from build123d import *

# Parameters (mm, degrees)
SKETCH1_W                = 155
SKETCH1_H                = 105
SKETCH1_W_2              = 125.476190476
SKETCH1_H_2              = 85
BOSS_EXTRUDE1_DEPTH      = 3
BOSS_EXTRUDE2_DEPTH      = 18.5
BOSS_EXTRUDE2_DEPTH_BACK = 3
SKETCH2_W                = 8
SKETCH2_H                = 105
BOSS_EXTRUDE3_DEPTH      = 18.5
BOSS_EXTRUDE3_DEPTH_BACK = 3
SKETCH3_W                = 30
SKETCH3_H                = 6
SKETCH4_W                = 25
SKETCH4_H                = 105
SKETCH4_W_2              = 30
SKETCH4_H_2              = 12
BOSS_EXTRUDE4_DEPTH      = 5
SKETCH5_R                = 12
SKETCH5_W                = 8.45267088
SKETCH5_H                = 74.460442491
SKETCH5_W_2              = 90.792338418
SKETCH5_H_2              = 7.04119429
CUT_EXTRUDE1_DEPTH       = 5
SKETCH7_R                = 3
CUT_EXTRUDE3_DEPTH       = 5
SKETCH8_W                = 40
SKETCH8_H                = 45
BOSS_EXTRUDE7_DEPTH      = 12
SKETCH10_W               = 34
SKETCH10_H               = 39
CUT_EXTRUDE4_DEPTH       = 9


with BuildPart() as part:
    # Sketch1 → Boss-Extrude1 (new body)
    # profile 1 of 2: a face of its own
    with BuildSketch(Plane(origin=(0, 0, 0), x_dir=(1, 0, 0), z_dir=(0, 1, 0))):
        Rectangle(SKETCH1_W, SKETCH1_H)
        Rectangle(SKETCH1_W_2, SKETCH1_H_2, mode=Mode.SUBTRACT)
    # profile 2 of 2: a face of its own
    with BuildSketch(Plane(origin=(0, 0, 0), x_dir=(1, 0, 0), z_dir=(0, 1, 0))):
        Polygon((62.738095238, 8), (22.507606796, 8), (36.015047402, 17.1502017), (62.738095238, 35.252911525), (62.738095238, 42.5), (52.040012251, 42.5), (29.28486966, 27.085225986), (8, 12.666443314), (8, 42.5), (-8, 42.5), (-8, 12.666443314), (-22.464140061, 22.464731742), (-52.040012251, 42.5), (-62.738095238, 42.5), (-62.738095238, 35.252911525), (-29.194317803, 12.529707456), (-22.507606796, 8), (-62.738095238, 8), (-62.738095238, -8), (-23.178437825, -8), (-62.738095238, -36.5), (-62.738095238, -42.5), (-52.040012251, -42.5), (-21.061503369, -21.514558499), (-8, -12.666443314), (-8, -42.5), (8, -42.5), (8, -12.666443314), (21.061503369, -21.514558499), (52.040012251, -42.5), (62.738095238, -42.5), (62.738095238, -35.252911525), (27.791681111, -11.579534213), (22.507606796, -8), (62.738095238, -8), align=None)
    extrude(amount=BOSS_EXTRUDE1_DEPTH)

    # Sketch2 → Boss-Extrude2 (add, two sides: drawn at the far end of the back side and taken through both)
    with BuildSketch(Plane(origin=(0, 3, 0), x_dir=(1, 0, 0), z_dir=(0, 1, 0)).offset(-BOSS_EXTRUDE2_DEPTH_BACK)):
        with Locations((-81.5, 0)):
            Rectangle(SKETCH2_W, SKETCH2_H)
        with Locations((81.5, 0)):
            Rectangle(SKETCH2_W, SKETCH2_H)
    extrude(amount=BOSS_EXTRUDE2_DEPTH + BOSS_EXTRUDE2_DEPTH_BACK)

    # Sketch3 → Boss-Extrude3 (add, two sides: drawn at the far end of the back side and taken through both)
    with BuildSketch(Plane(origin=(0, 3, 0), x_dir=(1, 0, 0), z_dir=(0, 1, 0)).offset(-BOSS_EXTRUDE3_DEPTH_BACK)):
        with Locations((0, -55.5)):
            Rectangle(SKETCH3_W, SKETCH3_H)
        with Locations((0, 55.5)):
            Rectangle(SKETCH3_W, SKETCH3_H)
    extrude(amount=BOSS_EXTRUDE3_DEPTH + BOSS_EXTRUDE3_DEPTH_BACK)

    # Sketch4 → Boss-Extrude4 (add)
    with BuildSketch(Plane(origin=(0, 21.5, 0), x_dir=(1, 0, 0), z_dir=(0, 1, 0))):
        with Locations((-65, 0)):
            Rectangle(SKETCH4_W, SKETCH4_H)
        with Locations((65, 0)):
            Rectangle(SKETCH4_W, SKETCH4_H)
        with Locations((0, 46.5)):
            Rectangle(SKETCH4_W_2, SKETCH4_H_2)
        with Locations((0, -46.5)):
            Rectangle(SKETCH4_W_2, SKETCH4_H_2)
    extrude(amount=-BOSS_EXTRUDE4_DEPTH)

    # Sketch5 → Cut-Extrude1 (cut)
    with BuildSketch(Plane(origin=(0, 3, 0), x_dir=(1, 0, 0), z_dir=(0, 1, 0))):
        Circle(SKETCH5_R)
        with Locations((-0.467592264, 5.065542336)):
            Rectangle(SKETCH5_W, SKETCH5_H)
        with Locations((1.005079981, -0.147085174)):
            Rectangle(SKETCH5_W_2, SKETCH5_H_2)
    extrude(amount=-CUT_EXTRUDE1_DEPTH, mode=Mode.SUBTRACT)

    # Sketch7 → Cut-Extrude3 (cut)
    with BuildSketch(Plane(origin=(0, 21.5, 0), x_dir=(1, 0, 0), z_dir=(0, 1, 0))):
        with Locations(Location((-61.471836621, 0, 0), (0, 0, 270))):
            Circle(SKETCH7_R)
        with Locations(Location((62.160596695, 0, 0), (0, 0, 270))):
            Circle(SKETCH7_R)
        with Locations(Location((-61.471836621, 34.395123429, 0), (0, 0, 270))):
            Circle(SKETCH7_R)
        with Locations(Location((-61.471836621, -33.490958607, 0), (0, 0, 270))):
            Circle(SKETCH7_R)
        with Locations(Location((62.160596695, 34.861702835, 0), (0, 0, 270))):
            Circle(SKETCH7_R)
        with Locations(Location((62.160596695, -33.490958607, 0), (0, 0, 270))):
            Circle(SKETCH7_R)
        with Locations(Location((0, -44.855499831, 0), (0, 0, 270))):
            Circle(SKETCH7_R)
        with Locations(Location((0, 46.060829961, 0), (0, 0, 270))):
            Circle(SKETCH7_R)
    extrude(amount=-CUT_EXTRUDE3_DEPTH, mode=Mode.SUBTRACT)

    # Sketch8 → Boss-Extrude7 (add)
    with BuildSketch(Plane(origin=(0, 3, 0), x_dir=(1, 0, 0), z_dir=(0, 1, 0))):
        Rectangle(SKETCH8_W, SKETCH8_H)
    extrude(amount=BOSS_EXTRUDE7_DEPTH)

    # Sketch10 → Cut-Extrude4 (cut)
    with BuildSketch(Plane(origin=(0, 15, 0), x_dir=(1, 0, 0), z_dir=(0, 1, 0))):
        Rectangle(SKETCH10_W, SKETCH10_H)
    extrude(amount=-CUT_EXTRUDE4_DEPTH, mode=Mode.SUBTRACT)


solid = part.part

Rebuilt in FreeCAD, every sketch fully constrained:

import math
import FreeCAD as App
import Part
import Sketcher
from FreeCAD import Vector
Q = App.Units.Quantity


def add_polygon(sketch, points):
    """Adds a closed chain of lines whose ends are joined by coincident constraints."""
    first, n = sketch.GeometryCount, len(points)
    for a, b in zip(points, points[1:] + points[:1]):
        sketch.addGeometry(Part.LineSegment(App.Vector(*a, 0), App.Vector(*b, 0)), False)
    for i in range(n):
        sketch.addConstraint(Sketcher.Constraint("Coincident", first + i, 2, first + (i + 1) % n, 1))

doc = App.newDocument("Part")
body = doc.addObject("PartDesign::Body", "Body")

sketch1 = body.newObject("Sketcher::SketchObject", "Sketch")
sketch1.AttachmentSupport = (doc.getObject("XZ_Plane"), [""])
sketch1.MapMode = "FlatFace"
add_polygon(sketch1, [(-78, -52), (-78, 52), (78, 52), (78, -52)])
add_polygon(sketch1, [(-8, 42), (-52, 42), (-21, 22), (-8, 13)])
add_polygon(sketch1, [(52, 42), (8, 42), (8, 13), (21, 22)])
add_polygon(sketch1, [(63, 8), (63, 35), (28, 12), (23, 8)])
add_polygon(sketch1, [(63, -35), (63, -8), (23, -8), (36, -17)])
add_polygon(sketch1, [(-52, -42), (-8, -42), (-8, -13), (-22, -22)])
add_polygon(sketch1, [(8, -42), (52, -42), (29, -27), (8, -13)])
add_polygon(sketch1, [(-63, 36), (-63, 8), (-23, 8)])
add_polygon(sketch1, [(-63, -8), (-63, -35), (-29, -13), (-23, -8)])
sketch1.addConstraint(Sketcher.Constraint("Vertical", 0))
sketch1.addConstraint(Sketcher.Constraint("Horizontal", 1))
sketch1.addConstraint(Sketcher.Constraint("Vertical", 2))
sketch1.addConstraint(Sketcher.Constraint("Horizontal", 3))
sketch1.addConstraint(Sketcher.Constraint("Horizontal", 4))
sketch1.addConstraint(Sketcher.Constraint("Vertical", 7))
sketch1.addConstraint(Sketcher.Constraint("Horizontal", 8))
sketch1.addConstraint(Sketcher.Constraint("Vertical", 9))
sketch1.addConstraint(Sketcher.Constraint("Vertical", 12))
sketch1.addConstraint(Sketcher.Constraint("Horizontal", 15))
sketch1.addConstraint(Sketcher.Constraint("Vertical", 16))
sketch1.addConstraint(Sketcher.Constraint("Horizontal", 17))
sketch1.addConstraint(Sketcher.Constraint("Horizontal", 20))
sketch1.addConstraint(Sketcher.Constraint("Vertical", 21))
sketch1.addConstraint(Sketcher.Constraint("Horizontal", 24))
sketch1.addConstraint(Sketcher.Constraint("Vertical", 27))
sketch1.addConstraint(Sketcher.Constraint("Vertical", 28))
sketch1.addConstraint(Sketcher.Constraint("Horizontal", 29))
sketch1.addConstraint(Sketcher.Constraint("Vertical", 31))
sketch1.addConstraint(Sketcher.Constraint("Horizontal", 34))
sketch1.addConstraint(Sketcher.Constraint("Symmetric", 0, 2, 2, 2, -1, 1))
sketch1.addConstraint(Sketcher.Constraint("Symmetric", 8, 2, 20, 2, -1, 1))
sketch1.addConstraint(Sketcher.Constraint("Symmetric", 4, 2, 24, 2, -1, 1))
sketch1.addConstraint(Sketcher.Constraint("Symmetric", 6, 2, 26, 2, -1, 1))
sketch1.addConstraint(Sketcher.Constraint("Symmetric", 16, 2, 28, 2, -1, 1))
sketch1.addConstraint(Sketcher.Constraint("Symmetric", 12, 2, 31, 2, -1, 1))
sketch1.addConstraint(Sketcher.Constraint("Symmetric", 14, 2, 33, 2, -1, 1))
sketch1.addConstraint(Sketcher.Constraint("Symmetric", 7, 2, 8, 2, -2))
sketch1.addConstraint(Sketcher.Constraint("Symmetric", 5, 2, 10, 2, -2))
sketch1.addConstraint(Sketcher.Constraint("Symmetric", 15, 2, 28, 2, -2))
sketch1.addConstraint(Sketcher.Constraint("Parallel", 5, 6))
sketch1.addConstraint(Sketcher.Constraint("Parallel", 10, 11))
sketch1.addConstraint(Sketcher.Constraint("Parallel", 11, 13))
sketch1.addConstraint(Sketcher.Constraint("Parallel", 13, 14))
sketch1.addConstraint(Sketcher.Constraint("Parallel", 6, 18))
sketch1.addConstraint(Sketcher.Constraint("Parallel", 18, 19))
sketch1.addConstraint(Sketcher.Constraint("Parallel", 14, 22))
sketch1.addConstraint(Sketcher.Constraint("Parallel", 22, 23))
sketch1.addConstraint(Sketcher.Constraint("Parallel", 19, 25))
sketch1.addConstraint(Sketcher.Constraint("Parallel", 23, 32))
sketch1.addConstraint(Sketcher.Constraint("Horizontal", 6, 2, 9, 2))
sketch1.addConstraint(Sketcher.Constraint("Horizontal", 21, 2, 26, 2))
sketch1.addConstraint(Sketcher.Constraint("Horizontal", 19, 2, 31, 2))
sketch1.addConstraint(Sketcher.Constraint("DistanceX", 1, 1, 1, 2, Q("155 mm")))
sketch1.addConstraint(Sketcher.Constraint("DistanceY", 0, 1, 0, 2, Q("105 mm")))
sketch1.addConstraint(Sketcher.Constraint("DistanceY", 28, 2, 28, 1, Q("28.5 mm")))
sketch1.addConstraint(Sketcher.Constraint("DistanceX", 6, 2, -1, 1, Q("8 mm")))
sketch1.addConstraint(Sketcher.Constraint("DistanceY", -1, 1, 14, 2, Q("8 mm")))
sketch1.addConstraint(Sketcher.Constraint("DistanceY", 4, 2, 0, 2, Q("10 mm")))
sketch1.addConstraint(Sketcher.Constraint("DistanceY", 21, 2, 5, 2, Q("34.181002 mm")))
sketch1.addConstraint(Sketcher.Constraint("DistanceX", 15, 1, 15, 2, Q("40.230488 mm")))
sketch1.addConstraint(Sketcher.Constraint("DistanceY", 12, 1, 12, 2, Q("27.252912 mm")))
sketch1.addConstraint(Sketcher.Constraint("DistanceY", 18, 2, -1, 1, Q("17.150202 mm")))
sketch1.addConstraint(Sketcher.Constraint("Distance", 6, Q("15.776312 mm")))
sketch1.addConstraint(Sketcher.Constraint("Distance", 13, Q("42.209959 mm")))
sketch1.addConstraint(Sketcher.Constraint("Distance", 23, Q("35.72316 mm")))
sketch1.addConstraint(Sketcher.Constraint("Distance", 26, Q("25.708889 mm")))
sketch1.addConstraint(Sketcher.Constraint("Distance", 33, Q("8.076531 mm")))
sketch1.addConstraint(Sketcher.Constraint("DistanceX", 29, 1, 29, 2, Q("39.559657 mm")))
sketch1.addConstraint(Sketcher.Constraint("DistanceX", -1, 1, 13, 2, Q("27.791681 mm")))
pad1 = body.newObject("PartDesign::Pad", "Pad")
pad1.Profile = sketch1
pad1.Length = 3
pad1.Reversed = True

sketch2 = body.newObject("Sketcher::SketchObject", "Sketch001")
sketch2.AttachmentSupport = (doc.getObject("XZ_Plane"), [""])
sketch2.MapMode = "FlatFace"
sketch2.AttachmentOffset = App.Placement(Vector(0, 0, -3), App.Rotation())
add_polygon(sketch2, [(-86, -52), (-86, 52), (-78, 52), (-78, -52)])
add_polygon(sketch2, [(78, -52), (78, 52), (86, 52), (86, -52)])
sketch2.addConstraint(Sketcher.Constraint("Vertical", 0))
sketch2.addConstraint(Sketcher.Constraint("Horizontal", 1))
sketch2.addConstraint(Sketcher.Constraint("Vertical", 2))
sketch2.addConstraint(Sketcher.Constraint("Horizontal", 3))
sketch2.addConstraint(Sketcher.Constraint("Vertical", 4))
sketch2.addConstraint(Sketcher.Constraint("Horizontal", 5))
sketch2.addConstraint(Sketcher.Constraint("Vertical", 6))
sketch2.addConstraint(Sketcher.Constraint("Horizontal", 7))
sketch2.addConstraint(Sketcher.Constraint("Symmetric", 2, 2, 4, 2, -1, 1))
sketch2.addConstraint(Sketcher.Constraint("Symmetric", 0, 2, 6, 2, -1, 1))
sketch2.addConstraint(Sketcher.Constraint("Horizontal", 1, 2, 4, 2))
sketch2.addConstraint(Sketcher.Constraint("DistanceX", 1, 1, 1, 2, Q("8 mm")))
sketch2.addConstraint(Sketcher.Constraint("DistanceY", 0, 1, 0, 2, Q("105 mm")))
sketch2.addConstraint(Sketcher.Constraint("DistanceX", 1, 2, 4, 2, Q("155 mm")))
pad2 = body.newObject("PartDesign::Pad", "Pad001")
pad2.Profile = sketch2
pad2.Type = "TwoLengths"
pad2.Length = 18.5
pad2.Length2 = 3
pad2.Reversed = True

sketch3 = body.newObject("Sketcher::SketchObject", "Sketch002")
sketch3.AttachmentSupport = (doc.getObject("XZ_Plane"), [""])
sketch3.MapMode = "FlatFace"
sketch3.AttachmentOffset = App.Placement(Vector(0, 0, -3), App.Rotation())
add_polygon(sketch3, [(-15, 52), (-15, 58), (15, 58), (15, 52)])
add_polygon(sketch3, [(-15, -58), (-15, -52), (15, -52), (15, -58)])
sketch3.addConstraint(Sketcher.Constraint("Vertical", 0))
sketch3.addConstraint(Sketcher.Constraint("Horizontal", 1))
sketch3.addConstraint(Sketcher.Constraint("Vertical", 2))
sketch3.addConstraint(Sketcher.Constraint("Horizontal", 3))
sketch3.addConstraint(Sketcher.Constraint("Vertical", 4))
sketch3.addConstraint(Sketcher.Constraint("Horizontal", 5))
sketch3.addConstraint(Sketcher.Constraint("Vertical", 6))
sketch3.addConstraint(Sketcher.Constraint("Horizontal", 7))
sketch3.addConstraint(Sketcher.Constraint("Symmetric", 2, 2, 4, 2, -1, 1))
sketch3.addConstraint(Sketcher.Constraint("Symmetric", 0, 2, 6, 2, -1, 1))
sketch3.addConstraint(Sketcher.Constraint("Vertical", 3, 2, 4, 2))
sketch3.addConstraint(Sketcher.Constraint("DistanceX", 1, 1, 1, 2, Q("30 mm")))
sketch3.addConstraint(Sketcher.Constraint("DistanceY", 0, 1, 0, 2, Q("6 mm")))
sketch3.addConstraint(Sketcher.Constraint("DistanceY", 4, 2, 3, 2, Q("105 mm")))
pad3 = body.newObject("PartDesign::Pad", "Pad002")
pad3.Profile = sketch3
pad3.Type = "TwoLengths"
pad3.Length = 18.5
pad3.Length2 = 3
pad3.Reversed = True

sketch4 = body.newObject("Sketcher::SketchObject", "Sketch003")
sketch4.AttachmentSupport = (doc.getObject("XZ_Plane"), [""])
sketch4.MapMode = "FlatFace"
sketch4.AttachmentOffset = App.Placement(Vector(0, 0, -21.5), App.Rotation())
add_polygon(sketch4, [(-78, -52), (-78, 52), (-52, 52), (-52, -52)])
add_polygon(sketch4, [(52, -52), (52, 52), (78, 52), (78, -52)])
add_polygon(sketch4, [(-15, -52), (-15, -40), (15, -40), (15, -52)])
add_polygon(sketch4, [(-15, 40), (-15, 52), (15, 52), (15, 40)])
sketch4.addConstraint(Sketcher.Constraint("Vertical", 0))
sketch4.addConstraint(Sketcher.Constraint("Horizontal", 1))
sketch4.addConstraint(Sketcher.Constraint("Vertical", 2))
sketch4.addConstraint(Sketcher.Constraint("Horizontal", 3))
sketch4.addConstraint(Sketcher.Constraint("Vertical", 4))
sketch4.addConstraint(Sketcher.Constraint("Horizontal", 5))
sketch4.addConstraint(Sketcher.Constraint("Vertical", 6))
sketch4.addConstraint(Sketcher.Constraint("Horizontal", 7))
sketch4.addConstraint(Sketcher.Constraint("Vertical", 8))
sketch4.addConstraint(Sketcher.Constraint("Horizontal", 9))
sketch4.addConstraint(Sketcher.Constraint("Vertical", 10))
sketch4.addConstraint(Sketcher.Constraint("Horizontal", 11))
sketch4.addConstraint(Sketcher.Constraint("Vertical", 12))
sketch4.addConstraint(Sketcher.Constraint("Horizontal", 13))
sketch4.addConstraint(Sketcher.Constraint("Vertical", 14))
sketch4.addConstraint(Sketcher.Constraint("Horizontal", 15))
sketch4.addConstraint(Sketcher.Constraint("Symmetric", 2, 2, 4, 2, -1, 1))
sketch4.addConstraint(Sketcher.Constraint("Symmetric", 0, 2, 6, 2, -1, 1))
sketch4.addConstraint(Sketcher.Constraint("Symmetric", 10, 2, 12, 2, -1, 1))
sketch4.addConstraint(Sketcher.Constraint("Symmetric", 8, 2, 14, 2, -1, 1))
sketch4.addConstraint(Sketcher.Constraint("Horizontal", 1, 2, 4, 2))
sketch4.addConstraint(Sketcher.Constraint("Horizontal", 7, 2, 10, 2))
sketch4.addConstraint(Sketcher.Constraint("Vertical", 11, 2, 12, 2))
sketch4.addConstraint(Sketcher.Constraint("DistanceX", 1, 1, 1, 2, Q("25 mm")))
sketch4.addConstraint(Sketcher.Constraint("DistanceX", 9, 1, 9, 2, Q("30 mm")))
sketch4.addConstraint(Sketcher.Constraint("DistanceY", 0, 1, 0, 2, Q("105 mm")))
sketch4.addConstraint(Sketcher.Constraint("DistanceY", 8, 1, 8, 2, Q("12 mm")))
sketch4.addConstraint(Sketcher.Constraint("DistanceX", 1, 2, 4, 2, Q("105 mm")))
pad4 = body.newObject("PartDesign::Pad", "Pad003")
pad4.Profile = sketch4
pad4.Length = 5

sketch5 = body.newObject("Sketcher::SketchObject", "Sketch004")
sketch5.AttachmentSupport = (doc.getObject("XZ_Plane"), [""])
sketch5.MapMode = "FlatFace"
sketch5.AttachmentOffset = App.Placement(Vector(0, 0, -3), App.Rotation())
sketch5.addGeometry(Part.LineSegment(Vector(4, 32, 0), Vector(4, 11, 0)), False)
sketch5.addGeometry(Part.ArcOfCircle(Part.Circle(Vector(0, 0, 0), Vector(0, 0, 1), 12), math.radians(18), math.radians(72)), False)
sketch5.addGeometry(Part.LineSegment(Vector(11, 4, 0), Vector(46, 4, 0)), False)
sketch5.addGeometry(Part.LineSegment(Vector(46, 4, 0), Vector(46, -3, 0)), False)
sketch5.addGeometry(Part.LineSegment(Vector(46, -3, 0), Vector(12, -3, 0)), False)
sketch5.addGeometry(Part.ArcOfCircle(Part.Circle(Vector(0, 0, 0), Vector(0, 0, 1), 12), math.radians(-72), math.radians(-16)), False)
sketch5.addGeometry(Part.LineSegment(Vector(4, -11, 0), Vector(4, -42, 0)), False)
sketch5.addGeometry(Part.LineSegment(Vector(4, -42, 0), Vector(-5, -42, 0)), False)
sketch5.addGeometry(Part.LineSegment(Vector(-5, -42, 0), Vector(-5, -11, 0)), False)
sketch5.addGeometry(Part.ArcOfCircle(Part.Circle(Vector(0, 0, 0), Vector(0, 0, 1), 12), math.radians(-164), math.radians(-113)), False)
sketch5.addGeometry(Part.LineSegment(Vector(-12, -3, 0), Vector(-44, -3, 0)), False)
sketch5.addGeometry(Part.LineSegment(Vector(-44, -3, 0), Vector(-44, 4, 0)), False)
sketch5.addGeometry(Part.LineSegment(Vector(-44, 4, 0), Vector(-11, 4, 0)), False)
sketch5.addGeometry(Part.ArcOfCircle(Part.Circle(Vector(0, 0, 0), Vector(0, 0, 1), 12), math.radians(113), math.radians(162)), False)
sketch5.addGeometry(Part.LineSegment(Vector(-5, 11, 0), Vector(-5, 32, 0)), False)
sketch5.addGeometry(Part.LineSegment(Vector(-5, 32, 0), Vector(4, 32, 0)), False)
sketch5.addConstraint(Sketcher.Constraint("Coincident", 0, 2, 1, 2))
sketch5.addConstraint(Sketcher.Constraint("Coincident", 1, 1, 2, 1))
sketch5.addConstraint(Sketcher.Constraint("Coincident", 2, 2, 3, 1))
sketch5.addConstraint(Sketcher.Constraint("Coincident", 3, 2, 4, 1))
sketch5.addConstraint(Sketcher.Constraint("Coincident", 4, 2, 5, 2))
sketch5.addConstraint(Sketcher.Constraint("Coincident", 5, 1, 6, 1))
sketch5.addConstraint(Sketcher.Constraint("Coincident", 6, 2, 7, 1))
sketch5.addConstraint(Sketcher.Constraint("Coincident", 7, 2, 8, 1))
sketch5.addConstraint(Sketcher.Constraint("Coincident", 8, 2, 9, 2))
sketch5.addConstraint(Sketcher.Constraint("Coincident", 9, 1, 10, 1))
sketch5.addConstraint(Sketcher.Constraint("Coincident", 10, 2, 11, 1))
sketch5.addConstraint(Sketcher.Constraint("Coincident", 11, 2, 12, 1))
sketch5.addConstraint(Sketcher.Constraint("Coincident", 12, 2, 13, 2))
sketch5.addConstraint(Sketcher.Constraint("Coincident", 13, 1, 14, 1))
sketch5.addConstraint(Sketcher.Constraint("Coincident", 14, 2, 15, 1))
sketch5.addConstraint(Sketcher.Constraint("Coincident", 15, 2, 0, 1))
sketch5.addConstraint(Sketcher.Constraint("Vertical", 0))
sketch5.addConstraint(Sketcher.Constraint("Horizontal", 2))
sketch5.addConstraint(Sketcher.Constraint("Vertical", 3))
sketch5.addConstraint(Sketcher.Constraint("Horizontal", 4))
sketch5.addConstraint(Sketcher.Constraint("Vertical", 6))
sketch5.addConstraint(Sketcher.Constraint("Horizontal", 7))
sketch5.addConstraint(Sketcher.Constraint("Vertical", 8))
sketch5.addConstraint(Sketcher.Constraint("Horizontal", 10))
sketch5.addConstraint(Sketcher.Constraint("Vertical", 11))
sketch5.addConstraint(Sketcher.Constraint("Horizontal", 12))
sketch5.addConstraint(Sketcher.Constraint("Vertical", 14))
sketch5.addConstraint(Sketcher.Constraint("Horizontal", 15))
sketch5.addConstraint(Sketcher.Constraint("Coincident", 1, 3, -1, 1))
sketch5.addConstraint(Sketcher.Constraint("Coincident", 5, 3, -1, 1))
sketch5.addConstraint(Sketcher.Constraint("Coincident", 9, 3, -1, 1))
sketch5.addConstraint(Sketcher.Constraint("Coincident", 13, 3, -1, 1))
sketch5.addConstraint(Sketcher.Constraint("Equal", 1, 5))
sketch5.addConstraint(Sketcher.Constraint("Equal", 5, 9))
sketch5.addConstraint(Sketcher.Constraint("Equal", 9, 13))
sketch5.addConstraint(Sketcher.Constraint("Horizontal", 4, 2, 9, 1))
sketch5.addConstraint(Sketcher.Constraint("Horizontal", 2, 2, 11, 2))
sketch5.addConstraint(Sketcher.Constraint("Vertical", 0, 2, 5, 1))
sketch5.addConstraint(Sketcher.Constraint("Vertical", 8, 2, 13, 1))
sketch5.addConstraint(Sketcher.Constraint("Radius", 1, Q("12 mm")))
sketch5.addConstraint(Sketcher.Constraint("DistanceX", 4, 2, 4, 1, Q("34.885199 mm")))
sketch5.addConstraint(Sketcher.Constraint("DistanceX", 7, 2, 7, 1, Q("8.452671 mm")))
sketch5.addConstraint(Sketcher.Constraint("DistanceX", 10, 2, 10, 1, Q("32.875039 mm")))
sketch5.addConstraint(Sketcher.Constraint("DistanceY", 6, 2, 6, 1, Q("30.89963 mm")))
sketch5.addConstraint(Sketcher.Constraint("DistanceY", 14, 1, 14, 2, Q("21.12081 mm")))
sketch5.addConstraint(Sketcher.Constraint("DistanceX", 2, 1, 2, 2, Q("34.975484 mm")))
sketch5.addConstraint(Sketcher.Constraint("DistanceY", 0, 2, 0, 1, Q("20.768546 mm")))
sketch5.addConstraint(Sketcher.Constraint("DistanceY", 3, 2, 3, 1, Q("7.041194 mm")))
pocket1 = body.newObject("PartDesign::Pocket", "Pocket")
pocket1.Profile = sketch5
pocket1.Length = 5
pocket1.Reversed = True

sketch6 = body.newObject("Sketcher::SketchObject", "Sketch005")
sketch6.AttachmentSupport = (doc.getObject("XZ_Plane"), [""])
sketch6.MapMode = "FlatFace"
sketch6.AttachmentOffset = App.Placement(Vector(0, 0, -21.5), App.Rotation())
sketch6.addGeometry(Part.Circle(Vector(-61.5, 0, 0), Vector(0, 0, 1), 3), False)
sketch6.addGeometry(Part.Circle(Vector(62.2, 0, 0), Vector(0, 0, 1), 3), False)
sketch6.addGeometry(Part.Circle(Vector(-61.5, -34.4, 0), Vector(0, 0, 1), 3), False)
sketch6.addGeometry(Part.Circle(Vector(-61.5, 33.5, 0), Vector(0, 0, 1), 3), False)
sketch6.addGeometry(Part.Circle(Vector(62.2, -34.9, 0), Vector(0, 0, 1), 3), False)
sketch6.addGeometry(Part.Circle(Vector(62.2, 33.5, 0), Vector(0, 0, 1), 3), False)
sketch6.addGeometry(Part.Circle(Vector(0, 44.9, 0), Vector(0, 0, 1), 3), False)
sketch6.addGeometry(Part.Circle(Vector(0, -46.1, 0), Vector(0, 0, 1), 3), False)
sketch6.addConstraint(Sketcher.Constraint("Equal", 0, 1))
sketch6.addConstraint(Sketcher.Constraint("Equal", 1, 2))
sketch6.addConstraint(Sketcher.Constraint("Equal", 2, 3))
sketch6.addConstraint(Sketcher.Constraint("Equal", 3, 4))
sketch6.addConstraint(Sketcher.Constraint("Equal", 4, 5))
sketch6.addConstraint(Sketcher.Constraint("Equal", 5, 6))
sketch6.addConstraint(Sketcher.Constraint("Equal", 6, 7))
sketch6.addConstraint(Sketcher.Constraint("PointOnObject", 0, 3, -1))
sketch6.addConstraint(Sketcher.Constraint("PointOnObject", 1, 3, -1))
sketch6.addConstraint(Sketcher.Constraint("PointOnObject", 6, 3, -2))
sketch6.addConstraint(Sketcher.Constraint("PointOnObject", 7, 3, -2))
sketch6.addConstraint(Sketcher.Constraint("Horizontal", 3, 3, 5, 3))
sketch6.addConstraint(Sketcher.Constraint("Vertical", 0, 3, 2, 3))
sketch6.addConstraint(Sketcher.Constraint("Vertical", 2, 3, 3, 3))
sketch6.addConstraint(Sketcher.Constraint("Vertical", 1, 3, 4, 3))
sketch6.addConstraint(Sketcher.Constraint("Vertical", 4, 3, 5, 3))
sketch6.addConstraint(Sketcher.Constraint("Diameter", 0, Q("6 mm")))
sketch6.addConstraint(Sketcher.Constraint("DistanceY", -1, 1, 6, 3, Q("44.8555 mm")))
sketch6.addConstraint(Sketcher.Constraint("DistanceY", -1, 1, 3, 3, Q("33.490959 mm")))
sketch6.addConstraint(Sketcher.Constraint("DistanceY", 7, 3, -1, 1, Q("46.06083 mm")))
sketch6.addConstraint(Sketcher.Constraint("DistanceY", 4, 3, 2, 3, Q("0.466579 mm")))
sketch6.addConstraint(Sketcher.Constraint("DistanceY", 4, 3, 3, 3, Q("68.352661 mm")))
sketch6.addConstraint(Sketcher.Constraint("DistanceX", 0, 3, -1, 1, Q("61.471837 mm")))
sketch6.addConstraint(Sketcher.Constraint("DistanceX", -1, 1, 1, 3, Q("62.160597 mm")))
pocket2 = body.newObject("PartDesign::Pocket", "Pocket001")
pocket2.Profile = sketch6
pocket2.Length = 5
pocket2.Reversed = True

sketch7 = body.newObject("Sketcher::SketchObject", "Sketch006")
sketch7.AttachmentSupport = (doc.getObject("XZ_Plane"), [""])
sketch7.MapMode = "FlatFace"
sketch7.AttachmentOffset = App.Placement(Vector(0, 0, -3), App.Rotation())
add_polygon(sketch7, [(-20, -22), (-20, 22), (20, 22), (20, -22)])
sketch7.addConstraint(Sketcher.Constraint("Vertical", 0))
sketch7.addConstraint(Sketcher.Constraint("Horizontal", 1))
sketch7.addConstraint(Sketcher.Constraint("Vertical", 2))
sketch7.addConstraint(Sketcher.Constraint("Horizontal", 3))
sketch7.addConstraint(Sketcher.Constraint("Symmetric", 0, 2, 2, 2, -1, 1))
sketch7.addConstraint(Sketcher.Constraint("DistanceX", 1, 1, 1, 2, Q("40 mm")))
sketch7.addConstraint(Sketcher.Constraint("DistanceY", 0, 1, 0, 2, Q("45 mm")))
pad5 = body.newObject("PartDesign::Pad", "Pad004")
pad5.Profile = sketch7
pad5.Length = 12
pad5.Reversed = True

sketch8 = body.newObject("Sketcher::SketchObject", "Sketch007")
sketch8.AttachmentSupport = (doc.getObject("XZ_Plane"), [""])
sketch8.MapMode = "FlatFace"
sketch8.AttachmentOffset = App.Placement(Vector(0, 0, -15), App.Rotation())
add_polygon(sketch8, [(-17, -20), (-17, 20), (17, 20), (17, -20)])
sketch8.addConstraint(Sketcher.Constraint("Vertical", 0))
sketch8.addConstraint(Sketcher.Constraint("Horizontal", 1))
sketch8.addConstraint(Sketcher.Constraint("Vertical", 2))
sketch8.addConstraint(Sketcher.Constraint("Horizontal", 3))
sketch8.addConstraint(Sketcher.Constraint("Symmetric", 0, 2, 2, 2, -1, 1))
sketch8.addConstraint(Sketcher.Constraint("DistanceX", 1, 1, 1, 2, Q("34 mm")))
sketch8.addConstraint(Sketcher.Constraint("DistanceY", 0, 1, 0, 2, Q("39 mm")))
pocket3 = body.newObject("PartDesign::Pocket", "Pocket002")
pocket3.Profile = sketch8
pocket3.Length = 9
pocket3.Reversed = True

doc.recompute()
